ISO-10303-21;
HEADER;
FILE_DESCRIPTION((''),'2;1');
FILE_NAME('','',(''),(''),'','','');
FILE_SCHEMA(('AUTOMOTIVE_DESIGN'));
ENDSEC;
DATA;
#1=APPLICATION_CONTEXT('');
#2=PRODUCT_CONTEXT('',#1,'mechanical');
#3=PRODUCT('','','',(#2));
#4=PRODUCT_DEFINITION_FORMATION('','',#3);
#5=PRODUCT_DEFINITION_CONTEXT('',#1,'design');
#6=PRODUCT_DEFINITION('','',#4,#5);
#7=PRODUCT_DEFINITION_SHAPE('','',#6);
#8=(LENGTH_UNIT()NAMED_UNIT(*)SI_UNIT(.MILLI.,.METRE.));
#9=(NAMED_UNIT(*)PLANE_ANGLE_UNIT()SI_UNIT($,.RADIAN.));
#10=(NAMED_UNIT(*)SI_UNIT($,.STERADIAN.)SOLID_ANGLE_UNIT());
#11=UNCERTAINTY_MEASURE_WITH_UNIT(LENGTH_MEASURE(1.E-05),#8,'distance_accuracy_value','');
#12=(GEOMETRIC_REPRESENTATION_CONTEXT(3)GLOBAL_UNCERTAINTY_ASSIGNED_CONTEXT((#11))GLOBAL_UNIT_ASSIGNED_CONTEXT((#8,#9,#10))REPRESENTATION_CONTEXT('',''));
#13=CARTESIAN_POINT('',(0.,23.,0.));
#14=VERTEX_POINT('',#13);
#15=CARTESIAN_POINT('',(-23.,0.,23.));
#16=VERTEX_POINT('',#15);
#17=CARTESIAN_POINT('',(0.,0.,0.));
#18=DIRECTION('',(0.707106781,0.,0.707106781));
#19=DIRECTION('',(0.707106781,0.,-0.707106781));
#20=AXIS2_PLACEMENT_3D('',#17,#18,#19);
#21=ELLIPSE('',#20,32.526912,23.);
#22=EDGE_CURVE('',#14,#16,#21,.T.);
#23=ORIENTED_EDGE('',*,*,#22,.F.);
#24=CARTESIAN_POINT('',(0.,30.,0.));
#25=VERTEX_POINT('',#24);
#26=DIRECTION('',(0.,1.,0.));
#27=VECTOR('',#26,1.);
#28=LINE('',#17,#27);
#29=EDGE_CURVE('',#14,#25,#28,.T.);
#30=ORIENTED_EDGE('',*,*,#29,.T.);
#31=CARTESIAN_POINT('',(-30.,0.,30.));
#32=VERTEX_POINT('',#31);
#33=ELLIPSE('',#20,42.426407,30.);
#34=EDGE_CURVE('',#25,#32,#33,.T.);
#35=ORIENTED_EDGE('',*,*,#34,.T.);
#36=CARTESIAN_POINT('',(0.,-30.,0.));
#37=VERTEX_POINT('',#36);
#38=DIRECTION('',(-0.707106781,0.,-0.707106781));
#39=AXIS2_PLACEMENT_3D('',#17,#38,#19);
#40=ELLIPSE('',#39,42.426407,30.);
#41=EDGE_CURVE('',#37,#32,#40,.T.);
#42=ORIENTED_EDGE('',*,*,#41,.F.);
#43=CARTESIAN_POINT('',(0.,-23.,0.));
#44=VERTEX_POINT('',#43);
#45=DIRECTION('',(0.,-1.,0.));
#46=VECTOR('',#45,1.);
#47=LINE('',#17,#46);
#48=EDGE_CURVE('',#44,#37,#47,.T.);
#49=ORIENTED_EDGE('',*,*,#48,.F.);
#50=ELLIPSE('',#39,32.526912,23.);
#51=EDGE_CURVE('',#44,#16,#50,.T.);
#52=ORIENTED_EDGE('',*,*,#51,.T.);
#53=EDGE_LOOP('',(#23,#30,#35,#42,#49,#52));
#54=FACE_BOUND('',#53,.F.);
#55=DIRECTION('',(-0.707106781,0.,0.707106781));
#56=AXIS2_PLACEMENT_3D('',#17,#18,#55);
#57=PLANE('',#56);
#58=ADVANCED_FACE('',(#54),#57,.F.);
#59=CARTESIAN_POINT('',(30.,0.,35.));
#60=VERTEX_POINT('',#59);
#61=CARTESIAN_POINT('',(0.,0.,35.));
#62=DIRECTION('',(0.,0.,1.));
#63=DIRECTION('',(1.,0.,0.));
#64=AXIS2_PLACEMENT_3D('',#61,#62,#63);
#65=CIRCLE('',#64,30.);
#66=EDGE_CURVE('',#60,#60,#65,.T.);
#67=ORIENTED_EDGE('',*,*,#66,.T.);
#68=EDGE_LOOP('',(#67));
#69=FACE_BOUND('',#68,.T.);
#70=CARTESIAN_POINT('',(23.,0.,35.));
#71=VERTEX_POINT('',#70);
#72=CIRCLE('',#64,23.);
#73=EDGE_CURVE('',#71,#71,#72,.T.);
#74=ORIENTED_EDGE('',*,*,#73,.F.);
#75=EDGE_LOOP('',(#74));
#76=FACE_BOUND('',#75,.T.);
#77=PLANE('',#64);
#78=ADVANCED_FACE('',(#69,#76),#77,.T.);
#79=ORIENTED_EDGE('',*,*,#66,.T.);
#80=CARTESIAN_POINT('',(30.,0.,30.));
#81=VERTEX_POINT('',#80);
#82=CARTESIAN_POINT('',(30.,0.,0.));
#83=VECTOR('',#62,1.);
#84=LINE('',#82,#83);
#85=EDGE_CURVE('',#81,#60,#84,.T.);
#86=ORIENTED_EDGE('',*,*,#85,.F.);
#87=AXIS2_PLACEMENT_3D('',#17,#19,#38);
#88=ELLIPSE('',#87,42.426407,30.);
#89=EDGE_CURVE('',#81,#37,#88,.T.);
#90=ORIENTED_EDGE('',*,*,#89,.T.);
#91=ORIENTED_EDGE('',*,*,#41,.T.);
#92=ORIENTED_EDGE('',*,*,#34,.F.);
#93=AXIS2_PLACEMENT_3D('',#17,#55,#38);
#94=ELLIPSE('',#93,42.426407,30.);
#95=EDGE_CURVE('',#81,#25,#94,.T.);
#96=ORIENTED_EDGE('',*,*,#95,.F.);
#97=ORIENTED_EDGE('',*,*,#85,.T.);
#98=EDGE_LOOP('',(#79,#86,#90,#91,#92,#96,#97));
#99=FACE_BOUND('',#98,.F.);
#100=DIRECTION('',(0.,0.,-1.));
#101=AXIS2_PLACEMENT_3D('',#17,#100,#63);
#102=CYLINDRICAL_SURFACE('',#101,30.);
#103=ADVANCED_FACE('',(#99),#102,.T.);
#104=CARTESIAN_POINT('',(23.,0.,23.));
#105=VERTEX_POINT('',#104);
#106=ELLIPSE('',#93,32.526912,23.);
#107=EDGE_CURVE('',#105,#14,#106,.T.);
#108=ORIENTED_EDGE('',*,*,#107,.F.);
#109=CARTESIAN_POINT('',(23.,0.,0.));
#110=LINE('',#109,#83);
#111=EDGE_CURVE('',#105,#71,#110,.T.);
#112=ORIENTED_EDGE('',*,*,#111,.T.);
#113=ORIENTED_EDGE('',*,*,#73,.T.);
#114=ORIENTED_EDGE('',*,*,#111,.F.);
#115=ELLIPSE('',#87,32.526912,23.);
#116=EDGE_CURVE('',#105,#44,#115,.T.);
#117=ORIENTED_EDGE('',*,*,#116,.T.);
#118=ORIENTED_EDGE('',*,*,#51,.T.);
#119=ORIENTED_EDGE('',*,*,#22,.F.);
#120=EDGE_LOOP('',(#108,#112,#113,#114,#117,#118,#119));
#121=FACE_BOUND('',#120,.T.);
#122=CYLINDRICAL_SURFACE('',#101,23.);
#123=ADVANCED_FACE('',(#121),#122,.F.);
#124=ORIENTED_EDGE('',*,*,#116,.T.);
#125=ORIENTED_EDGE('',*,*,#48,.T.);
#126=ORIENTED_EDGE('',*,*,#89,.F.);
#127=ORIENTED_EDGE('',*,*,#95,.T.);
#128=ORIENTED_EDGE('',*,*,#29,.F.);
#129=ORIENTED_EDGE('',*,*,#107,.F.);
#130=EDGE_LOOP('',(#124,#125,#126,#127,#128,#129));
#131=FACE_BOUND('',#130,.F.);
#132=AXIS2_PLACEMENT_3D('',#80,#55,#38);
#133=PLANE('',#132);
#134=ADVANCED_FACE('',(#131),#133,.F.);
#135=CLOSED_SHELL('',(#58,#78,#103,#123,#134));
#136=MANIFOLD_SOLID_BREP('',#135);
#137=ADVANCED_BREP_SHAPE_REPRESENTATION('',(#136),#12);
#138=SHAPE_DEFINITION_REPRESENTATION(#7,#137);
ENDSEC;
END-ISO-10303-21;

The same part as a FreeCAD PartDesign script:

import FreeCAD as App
import Part
import Sketcher
from FreeCAD import Vector
Q = App.Units.Quantity

doc = App.newDocument("Part")
body = doc.addObject("PartDesign::Body", "Body")

sketch1 = doc.addObject("Sketcher::SketchObject", "Sketch")
body.addObject(sketch1)
sketch1.AttachmentSupport = (doc.XY_Plane, [""])
sketch1.MapMode = "FlatFace"
sketch1.addGeometry(Part.Circle(Vector(0, 0, 0), Vector(0, 0, 1), 30), False)
sketch1.addGeometry(Part.Circle(Vector(0, 0, 0), Vector(0, 0, 1), 23), False)
sketch1.addConstraint(Sketcher.Constraint("Coincident", 0, 3, -1, 1))
sketch1.addConstraint(Sketcher.Constraint("Coincident", 1, 3, -1, 1))
sketch1.addConstraint(Sketcher.Constraint("Diameter", 0, Q("60 mm")))
sketch1.addConstraint(Sketcher.Constraint("Diameter", 1, Q("46 mm")))
pad1 = doc.addObject("PartDesign::Pad", "Pad")
body.addObject(pad1)
pad1.Profile = sketch1
pad1.Length = 35

sketch2 = doc.addObject("Sketcher::SketchObject", "Sketch001")
body.addObject(sketch2)
sketch2.AttachmentSupport = (doc.XZ_Plane, [""])
sketch2.MapMode = "FlatFace"
sketch2.addGeometry(Part.LineSegment(Vector(-30, 30, 0), Vector(-30, 0, 0)), False)
sketch2.addGeometry(Part.LineSegment(Vector(-30, 0, 0), Vector(0, 0, 0)), False)
sketch2.addGeometry(Part.LineSegment(Vector(0, 0, 0), Vector(-30, 30, 0)), False)
sketch2.addGeometry(Part.LineSegment(Vector(30, 30, 0), Vector(0, 0, 0)), False)
sketch2.addGeometry(Part.LineSegment(Vector(0, 0, 0), Vector(30, 0, 0)), False)
sketch2.addGeometry(Part.LineSegment(Vector(30, 0, 0), Vector(30, 30, 0)), False)
sketch2.addConstraint(Sketcher.Constraint("Coincident", 0, 2, 1, 1))
sketch2.addConstraint(Sketcher.Constraint("Coincident", 1, 2, 2, 1))
sketch2.addConstraint(Sketcher.Constraint("Coincident", 2, 2, 0, 1))
sketch2.addConstraint(Sketcher.Constraint("Coincident", 3, 2, 4, 1))
sketch2.addConstraint(Sketcher.Constraint("Coincident", 4, 2, 5, 1))
sketch2.addConstraint(Sketcher.Constraint("Coincident", 5, 2, 3, 1))
sketch2.addConstraint(Sketcher.Constraint("Vertical", 0))
sketch2.addConstraint(Sketcher.Constraint("Horizontal", 1))
sketch2.addConstraint(Sketcher.Constraint("Horizontal", 4))
sketch2.addConstraint(Sketcher.Constraint("Vertical", 5))
sketch2.addConstraint(Sketcher.Constraint("Coincident", 1, 2, -1, 1))
sketch2.addConstraint(Sketcher.Constraint("Coincident", 3, 2, -1, 1))
sketch2.addConstraint(Sketcher.Constraint("Symmetric", 2, 2, 5, 2, -2))
sketch2.addConstraint(Sketcher.Constraint("Perpendicular", 2, 3))
sketch2.addConstraint(Sketcher.Constraint("DistanceX", 1, 1, 1, 2, Q("30 mm")))
pocket1 = doc.addObject("PartDesign::Pocket", "Pocket")
body.addObject(pocket1)
pocket1.Profile = sketch2
pocket1.Type = "ThroughAll"
pocket1.Midplane = True

doc.recompute()
